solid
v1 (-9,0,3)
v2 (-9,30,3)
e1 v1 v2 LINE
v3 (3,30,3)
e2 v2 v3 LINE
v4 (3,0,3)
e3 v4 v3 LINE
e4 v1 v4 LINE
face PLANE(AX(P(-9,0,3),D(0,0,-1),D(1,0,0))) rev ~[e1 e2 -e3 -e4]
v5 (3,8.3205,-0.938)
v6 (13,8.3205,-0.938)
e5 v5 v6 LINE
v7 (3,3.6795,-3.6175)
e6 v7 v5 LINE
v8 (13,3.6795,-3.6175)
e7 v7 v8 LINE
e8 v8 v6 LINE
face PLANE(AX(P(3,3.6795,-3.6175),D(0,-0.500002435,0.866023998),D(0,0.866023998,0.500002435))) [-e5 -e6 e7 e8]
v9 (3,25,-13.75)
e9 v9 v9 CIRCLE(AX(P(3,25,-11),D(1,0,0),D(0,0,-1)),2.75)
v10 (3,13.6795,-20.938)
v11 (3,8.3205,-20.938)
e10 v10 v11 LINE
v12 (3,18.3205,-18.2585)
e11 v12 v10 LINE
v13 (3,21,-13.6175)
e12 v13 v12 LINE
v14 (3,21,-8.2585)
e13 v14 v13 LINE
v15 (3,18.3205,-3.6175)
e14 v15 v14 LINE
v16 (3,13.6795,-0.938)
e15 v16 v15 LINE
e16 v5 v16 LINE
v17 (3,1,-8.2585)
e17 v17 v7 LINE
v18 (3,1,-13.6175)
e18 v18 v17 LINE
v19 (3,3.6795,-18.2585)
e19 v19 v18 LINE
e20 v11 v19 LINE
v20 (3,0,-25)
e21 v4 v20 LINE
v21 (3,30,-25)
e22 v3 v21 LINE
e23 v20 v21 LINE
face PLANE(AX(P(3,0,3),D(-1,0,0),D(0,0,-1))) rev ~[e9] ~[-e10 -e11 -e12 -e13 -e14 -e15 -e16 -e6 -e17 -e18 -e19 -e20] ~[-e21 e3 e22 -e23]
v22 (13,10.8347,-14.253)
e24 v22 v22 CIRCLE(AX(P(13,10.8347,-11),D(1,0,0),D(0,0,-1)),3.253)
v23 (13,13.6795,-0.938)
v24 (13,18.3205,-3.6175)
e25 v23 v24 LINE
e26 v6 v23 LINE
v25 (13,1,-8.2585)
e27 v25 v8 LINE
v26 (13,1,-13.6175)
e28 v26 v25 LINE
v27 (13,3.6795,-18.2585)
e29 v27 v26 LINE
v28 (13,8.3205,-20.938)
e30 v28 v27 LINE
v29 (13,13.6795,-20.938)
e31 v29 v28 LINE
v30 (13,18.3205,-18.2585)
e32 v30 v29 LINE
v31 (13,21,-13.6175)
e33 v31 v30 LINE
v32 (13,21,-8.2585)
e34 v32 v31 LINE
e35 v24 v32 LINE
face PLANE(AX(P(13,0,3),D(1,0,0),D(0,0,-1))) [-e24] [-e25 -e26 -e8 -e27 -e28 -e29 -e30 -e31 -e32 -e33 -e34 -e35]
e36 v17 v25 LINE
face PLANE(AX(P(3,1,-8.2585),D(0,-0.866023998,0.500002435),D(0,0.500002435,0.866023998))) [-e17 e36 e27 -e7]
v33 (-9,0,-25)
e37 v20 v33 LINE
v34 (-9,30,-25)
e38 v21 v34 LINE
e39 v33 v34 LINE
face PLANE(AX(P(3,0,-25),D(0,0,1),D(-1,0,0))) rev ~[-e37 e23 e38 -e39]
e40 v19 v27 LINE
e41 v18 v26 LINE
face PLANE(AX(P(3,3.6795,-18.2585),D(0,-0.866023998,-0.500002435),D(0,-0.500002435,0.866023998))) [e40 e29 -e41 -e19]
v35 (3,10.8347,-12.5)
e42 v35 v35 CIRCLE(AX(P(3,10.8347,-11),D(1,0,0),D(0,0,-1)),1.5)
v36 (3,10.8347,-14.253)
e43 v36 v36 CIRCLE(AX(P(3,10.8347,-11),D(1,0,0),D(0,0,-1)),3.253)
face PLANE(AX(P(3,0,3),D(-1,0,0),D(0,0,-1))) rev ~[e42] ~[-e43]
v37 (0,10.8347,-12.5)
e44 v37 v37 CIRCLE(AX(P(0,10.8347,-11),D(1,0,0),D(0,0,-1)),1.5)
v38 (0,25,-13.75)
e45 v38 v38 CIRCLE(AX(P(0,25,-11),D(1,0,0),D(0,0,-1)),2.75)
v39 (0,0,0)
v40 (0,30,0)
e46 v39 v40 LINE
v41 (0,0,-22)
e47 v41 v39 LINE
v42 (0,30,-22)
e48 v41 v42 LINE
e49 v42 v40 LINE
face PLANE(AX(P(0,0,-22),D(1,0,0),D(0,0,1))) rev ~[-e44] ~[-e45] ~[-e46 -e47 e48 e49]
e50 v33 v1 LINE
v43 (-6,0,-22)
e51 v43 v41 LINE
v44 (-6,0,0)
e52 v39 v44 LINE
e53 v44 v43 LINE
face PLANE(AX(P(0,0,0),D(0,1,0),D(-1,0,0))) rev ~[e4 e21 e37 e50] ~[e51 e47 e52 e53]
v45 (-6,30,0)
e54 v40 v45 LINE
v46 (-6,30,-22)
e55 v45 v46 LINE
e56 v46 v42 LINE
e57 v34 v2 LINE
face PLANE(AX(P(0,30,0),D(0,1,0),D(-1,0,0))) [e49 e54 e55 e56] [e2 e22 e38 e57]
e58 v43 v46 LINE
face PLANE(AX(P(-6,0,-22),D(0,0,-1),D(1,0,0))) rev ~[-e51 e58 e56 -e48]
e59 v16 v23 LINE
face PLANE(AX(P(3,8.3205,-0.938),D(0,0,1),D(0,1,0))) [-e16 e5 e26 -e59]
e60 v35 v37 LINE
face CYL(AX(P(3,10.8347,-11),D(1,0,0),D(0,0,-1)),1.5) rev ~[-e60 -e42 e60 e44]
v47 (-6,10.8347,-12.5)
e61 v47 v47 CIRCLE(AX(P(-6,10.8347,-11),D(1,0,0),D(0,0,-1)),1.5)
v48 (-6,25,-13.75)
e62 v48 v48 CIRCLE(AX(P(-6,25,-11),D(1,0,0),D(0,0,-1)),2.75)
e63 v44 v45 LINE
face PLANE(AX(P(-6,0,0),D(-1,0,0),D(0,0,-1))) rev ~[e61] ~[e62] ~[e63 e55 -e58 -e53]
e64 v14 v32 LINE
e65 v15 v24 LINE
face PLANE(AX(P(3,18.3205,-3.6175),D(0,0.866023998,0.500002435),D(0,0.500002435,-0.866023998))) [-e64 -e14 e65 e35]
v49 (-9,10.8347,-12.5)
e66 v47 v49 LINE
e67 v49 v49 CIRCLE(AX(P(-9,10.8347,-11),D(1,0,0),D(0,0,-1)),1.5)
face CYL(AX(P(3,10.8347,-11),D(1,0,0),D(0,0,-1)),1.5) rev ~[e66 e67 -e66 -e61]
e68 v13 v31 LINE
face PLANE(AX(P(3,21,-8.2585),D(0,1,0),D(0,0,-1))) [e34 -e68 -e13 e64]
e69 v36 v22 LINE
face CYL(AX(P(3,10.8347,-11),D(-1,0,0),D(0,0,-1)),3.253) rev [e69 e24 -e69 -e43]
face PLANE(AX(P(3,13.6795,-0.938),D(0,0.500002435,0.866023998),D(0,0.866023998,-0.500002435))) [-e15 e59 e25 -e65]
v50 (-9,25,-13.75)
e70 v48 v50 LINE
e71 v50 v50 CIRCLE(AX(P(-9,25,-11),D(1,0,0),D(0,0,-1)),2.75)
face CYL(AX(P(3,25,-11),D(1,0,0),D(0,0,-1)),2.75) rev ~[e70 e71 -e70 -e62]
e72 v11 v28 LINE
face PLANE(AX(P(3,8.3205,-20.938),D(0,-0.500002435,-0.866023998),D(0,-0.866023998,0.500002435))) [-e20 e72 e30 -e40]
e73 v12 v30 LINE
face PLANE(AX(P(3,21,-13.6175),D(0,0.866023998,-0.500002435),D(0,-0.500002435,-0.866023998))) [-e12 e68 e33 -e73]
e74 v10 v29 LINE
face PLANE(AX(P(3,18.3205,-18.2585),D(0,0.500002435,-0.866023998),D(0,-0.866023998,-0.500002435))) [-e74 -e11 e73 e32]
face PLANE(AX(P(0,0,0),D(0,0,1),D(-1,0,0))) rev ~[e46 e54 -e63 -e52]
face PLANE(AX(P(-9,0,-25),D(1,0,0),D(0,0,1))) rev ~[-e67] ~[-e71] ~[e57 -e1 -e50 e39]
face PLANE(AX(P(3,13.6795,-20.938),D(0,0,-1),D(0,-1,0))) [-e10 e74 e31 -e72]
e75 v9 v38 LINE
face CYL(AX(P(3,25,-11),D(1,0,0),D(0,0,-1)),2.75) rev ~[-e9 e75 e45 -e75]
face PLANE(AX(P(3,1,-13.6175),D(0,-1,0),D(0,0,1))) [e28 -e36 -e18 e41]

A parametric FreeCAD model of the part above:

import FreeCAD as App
import Part
import Sketcher
Q = App.Units.Quantity


def add_polygon(sketch, points):
    """Adds a closed chain of lines whose ends are joined by coincident constraints."""
    first, n = sketch.GeometryCount, len(points)
    for a, b in zip(points, points[1:] + points[:1]):
        sketch.addGeometry(Part.LineSegment(App.Vector(*a, 0), App.Vector(*b, 0)), False)
    for i in range(n):
        sketch.addConstraint(Sketcher.Constraint("Coincident", first + i, 2, first + (i + 1) % n, 1))

doc = App.newDocument("Part")
body = doc.addObject("PartDesign::Body", "Body")

sketch1 = body.newObject("Sketcher::SketchObject", "Sketch")
sketch1.AttachmentSupport = (doc.getObject("XZ_Plane"), [""])
sketch1.MapMode = "FlatFace"
add_polygon(sketch1, [(-9, -25), (-9, 3), (3, 3), (3, -25)])
add_polygon(sketch1, [(0, -22), (0, 0), (-6, 0), (-6, -22)])
sketch1.addConstraint([
    Sketcher.Constraint("Vertical", 0),
    Sketcher.Constraint("Horizontal", 1),
    Sketcher.Constraint("Vertical", 2),
    Sketcher.Constraint("Horizontal", 3),
    Sketcher.Constraint("Vertical", 4),
    Sketcher.Constraint("Horizontal", 5),
    Sketcher.Constraint("Vertical", 6),
    Sketcher.Constraint("Horizontal", 7),
    Sketcher.Constraint("Coincident", 4, 2, -1, 1),
    Sketcher.Constraint("DistanceX", 5, 2, 5, 1, 6.0),
    Sketcher.Constraint("DistanceY", 4, 1, 4, 2, 22.0),
    Sketcher.Constraint("DistanceY", -1, 1, 0, 2, 3.0),
    Sketcher.Constraint("DistanceX", -1, 1, 1, 2, 3.0),
    Sketcher.Constraint("DistanceX", 0, 2, 5, 2, 3.0),
    Sketcher.Constraint("DistanceY", 3, 2, 6, 2, 3.0),
])
pad1 = body.newObject("PartDesign::Pad", "Pad")
pad1.Profile = sketch1
pad1.Length = 30
pad1.Reversed = True

sketch2 = body.newObject("Sketcher::SketchObject", "Sketch001")
sketch2.AttachmentSupport = (doc.getObject("YZ_Plane"), [""])
sketch2.MapMode = "FlatFace"
sketch2.AttachmentOffset = App.Placement(App.Vector(0, 0, 3), App.Rotation())
sketch2.addGeometry(Part.Circle(App.Vector(25, -11, 0), App.Vector(0, 0, 1), 2.75), False)
sketch2.addConstraint([
    Sketcher.Constraint("Diameter", 0, 5.5),
    Sketcher.Constraint("DistanceX", -1, 1, 0, 3, 25.0),
    Sketcher.Constraint("DistanceY", 0, 3, -1, 1, 11.0),
])
pocket1 = body.newObject("PartDesign::Pocket", "Pocket")
pocket1.Profile = sketch2
pocket1.Length = 30

sketch3 = body.newObject("Sketcher::SketchObject", "Sketch002")
sketch3.AttachmentSupport = (doc.getObject("YZ_Plane"), [""])
sketch3.MapMode = "FlatFace"
sketch3.AttachmentOffset = App.Placement(App.Vector(0, 0, 3), App.Rotation())
add_polygon(sketch3, [(8.3205, -0.938), (3.6795, -3.6175), (1, -8.2585), (1, -13.6175), (3.6795, -18.2585), (8.3205, -20.938), (13.6795, -20.938), (18.3205, -18.2585), (21, -13.6175), (21, -8.2585), (18.3205, -3.6175), (13.6795, -0.938)])
sketch3.addGeometry(Part.Circle(App.Vector(10.8347, -11, 0), App.Vector(0, 0, 1), 3.253), False)
sketch3.addConstraint([
    Sketcher.Constraint("Vertical", 2),
    Sketcher.Constraint("Horizontal", 5),
    Sketcher.Constraint("Vertical", 8),
    Sketcher.Constraint("Horizontal", 11),
    Sketcher.Constraint("Perpendicular", 0, 3),
    Sketcher.Constraint("Perpendicular", 1, 4),
    Sketcher.Constraint("Perpendicular", 3, 6),
    Sketcher.Constraint("Perpendicular", 4, 7),
    Sketcher.Constraint("Perpendicular", 6, 9),
    Sketcher.Constraint("Perpendicular", 7, 10),
    Sketcher.Constraint("Horizontal", 3, 2, 6, 2),
    Sketcher.Constraint("Horizontal", 2, 2, 7, 2),
    Sketcher.Constraint("Horizontal", 1, 2, 8, 2),
    Sketcher.Constraint("Horizontal", 0, 2, 9, 2),
    Sketcher.Constraint("Vertical", 0, 2, 3, 2),
    Sketcher.Constraint("Vertical", 6, 2, 9, 2),
    Sketcher.Constraint("Vertical", 5, 2, 10, 2),
    Sketcher.Constraint("Equal", 11, 2),
    Sketcher.Constraint("Equal", 0, 1),
    Sketcher.Constraint("DistanceY", 2, 2, 0, 2, 10.0),
    Sketcher.Constraint("Angle", 0, Q("-149.9998 deg")),
    Sketcher.Constraint("Diameter", 12, 6.506),
    Sketcher.Constraint("DistanceY", 12, 3, -1, 1, 11.0),
    Sketcher.Constraint("DistanceX", -1, 1, 1, 2, 1.0),
    Sketcher.Constraint("DistanceX", -1, 1, 7, 2, 21.0),
    Sketcher.Constraint("DistanceY", 4, 2, -1, 1, 20.938),
    Sketcher.Constraint("DistanceX", -1, 1, 12, 3, 10.8347),
])
pad2 = body.newObject("PartDesign::Pad", "Pad001")
pad2.Profile = sketch3
pad2.Length = 10

sketch4 = body.newObject("Sketcher::SketchObject", "Sketch003")
sketch4.AttachmentSupport = (doc.getObject("YZ_Plane"), [""])
sketch4.MapMode = "FlatFace"
sketch4.AttachmentOffset = App.Placement(App.Vector(0, 0, 3), App.Rotation())
sketch4.addGeometry(Part.Circle(App.Vector(10.8347, -11, 0), App.Vector(0, 0, 1), 1.5), False)
sketch4.addConstraint([
    Sketcher.Constraint("Diameter", 0, 3.0),
    Sketcher.Constraint("DistanceY", 0, 3, -1, 1, 11.0),
    Sketcher.Constraint("DistanceX", -1, 1, 0, 3, 10.8347),
])
pocket2 = body.newObject("PartDesign::Pocket", "Pocket001")
pocket2.Profile = sketch4
pocket2.Length = 12

doc.recompute()
